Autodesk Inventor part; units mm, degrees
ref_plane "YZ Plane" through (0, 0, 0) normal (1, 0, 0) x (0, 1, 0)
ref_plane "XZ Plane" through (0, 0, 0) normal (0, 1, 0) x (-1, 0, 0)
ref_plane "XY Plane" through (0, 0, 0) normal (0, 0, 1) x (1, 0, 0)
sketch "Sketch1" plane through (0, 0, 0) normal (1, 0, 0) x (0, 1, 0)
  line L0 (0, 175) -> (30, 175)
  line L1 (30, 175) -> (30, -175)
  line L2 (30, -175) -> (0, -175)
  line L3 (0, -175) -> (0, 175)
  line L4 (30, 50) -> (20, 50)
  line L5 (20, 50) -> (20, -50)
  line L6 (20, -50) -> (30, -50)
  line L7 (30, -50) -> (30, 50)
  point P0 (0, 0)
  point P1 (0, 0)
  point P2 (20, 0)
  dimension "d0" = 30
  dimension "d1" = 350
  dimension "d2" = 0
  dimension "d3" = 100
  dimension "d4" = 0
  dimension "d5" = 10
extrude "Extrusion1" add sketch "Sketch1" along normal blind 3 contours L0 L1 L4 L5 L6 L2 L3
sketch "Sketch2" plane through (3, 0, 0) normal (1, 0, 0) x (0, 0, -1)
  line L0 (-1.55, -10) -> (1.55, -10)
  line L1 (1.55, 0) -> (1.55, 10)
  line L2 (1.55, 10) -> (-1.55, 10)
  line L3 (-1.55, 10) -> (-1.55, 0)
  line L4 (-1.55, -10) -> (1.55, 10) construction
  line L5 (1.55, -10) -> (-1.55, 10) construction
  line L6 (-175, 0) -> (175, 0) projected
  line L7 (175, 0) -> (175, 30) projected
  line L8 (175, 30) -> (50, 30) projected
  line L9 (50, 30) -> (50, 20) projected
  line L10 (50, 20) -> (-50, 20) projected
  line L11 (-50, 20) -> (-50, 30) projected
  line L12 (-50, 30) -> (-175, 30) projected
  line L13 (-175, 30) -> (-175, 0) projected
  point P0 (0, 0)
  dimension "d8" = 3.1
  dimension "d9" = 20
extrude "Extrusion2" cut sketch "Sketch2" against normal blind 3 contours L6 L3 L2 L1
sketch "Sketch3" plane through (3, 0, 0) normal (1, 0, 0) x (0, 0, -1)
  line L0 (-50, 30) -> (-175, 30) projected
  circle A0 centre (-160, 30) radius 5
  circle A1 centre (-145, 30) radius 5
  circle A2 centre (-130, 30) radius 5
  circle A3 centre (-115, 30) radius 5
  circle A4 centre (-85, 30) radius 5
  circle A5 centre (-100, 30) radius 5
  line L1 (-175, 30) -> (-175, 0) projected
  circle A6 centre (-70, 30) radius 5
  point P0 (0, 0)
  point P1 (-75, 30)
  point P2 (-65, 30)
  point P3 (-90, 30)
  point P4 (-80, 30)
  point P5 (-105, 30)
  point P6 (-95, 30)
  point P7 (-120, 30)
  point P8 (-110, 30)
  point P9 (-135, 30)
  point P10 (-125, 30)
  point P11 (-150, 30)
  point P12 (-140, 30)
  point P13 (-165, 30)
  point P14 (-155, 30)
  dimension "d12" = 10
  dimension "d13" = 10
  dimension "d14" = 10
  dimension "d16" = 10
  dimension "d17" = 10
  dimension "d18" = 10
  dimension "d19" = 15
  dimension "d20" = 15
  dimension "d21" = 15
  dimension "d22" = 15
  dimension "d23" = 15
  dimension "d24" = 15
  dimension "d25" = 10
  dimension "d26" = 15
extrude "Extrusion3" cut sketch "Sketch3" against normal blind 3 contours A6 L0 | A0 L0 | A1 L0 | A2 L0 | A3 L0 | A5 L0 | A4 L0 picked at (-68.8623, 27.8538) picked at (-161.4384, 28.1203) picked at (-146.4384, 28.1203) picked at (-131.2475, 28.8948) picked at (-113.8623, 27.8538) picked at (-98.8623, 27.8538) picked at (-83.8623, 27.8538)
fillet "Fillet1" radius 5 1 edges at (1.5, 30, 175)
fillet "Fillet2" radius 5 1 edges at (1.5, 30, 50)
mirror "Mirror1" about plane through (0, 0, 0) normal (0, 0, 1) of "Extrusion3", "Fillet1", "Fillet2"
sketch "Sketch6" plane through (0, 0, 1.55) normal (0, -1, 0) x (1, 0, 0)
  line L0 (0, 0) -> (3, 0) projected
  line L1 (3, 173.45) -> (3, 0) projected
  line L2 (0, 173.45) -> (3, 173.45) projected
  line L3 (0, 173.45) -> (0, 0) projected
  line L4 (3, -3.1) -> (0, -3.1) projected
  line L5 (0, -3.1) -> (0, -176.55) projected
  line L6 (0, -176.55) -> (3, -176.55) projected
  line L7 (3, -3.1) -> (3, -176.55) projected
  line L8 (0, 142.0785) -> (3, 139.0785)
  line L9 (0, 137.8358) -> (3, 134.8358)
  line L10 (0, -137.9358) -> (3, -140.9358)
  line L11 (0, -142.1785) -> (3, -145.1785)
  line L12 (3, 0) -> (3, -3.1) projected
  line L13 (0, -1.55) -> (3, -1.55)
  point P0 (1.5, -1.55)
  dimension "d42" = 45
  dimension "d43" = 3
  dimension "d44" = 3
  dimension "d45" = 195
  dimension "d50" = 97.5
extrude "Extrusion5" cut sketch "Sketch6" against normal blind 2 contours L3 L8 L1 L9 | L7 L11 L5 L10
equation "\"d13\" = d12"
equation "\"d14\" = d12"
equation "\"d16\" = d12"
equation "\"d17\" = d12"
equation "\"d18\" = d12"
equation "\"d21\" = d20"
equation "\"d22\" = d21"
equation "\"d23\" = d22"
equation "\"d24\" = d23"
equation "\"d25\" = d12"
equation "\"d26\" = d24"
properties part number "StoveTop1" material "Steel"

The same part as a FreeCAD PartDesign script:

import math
import FreeCAD as App
import Part
import Sketcher

V = App.Vector
Q = App.Units.Quantity


def edges_at(feature, points):
    """Names of the edges that pass closest to the given points."""
    edges = feature.Shape.Edges
    near = lambda p: min(range(len(edges)), key=lambda i: edges[i].distToShape(Part.Vertex(*p))[0])
    return sorted({f"Edge{near(p) + 1}" for p in points})

doc = App.newDocument("Part")
body = doc.addObject("PartDesign::Body", "Body")

# Sketch on YZ plane
sketch1 = body.newObject("Sketcher::SketchObject", "Sketch")
sketch1.AttachmentSupport = (doc.getObject("YZ_Plane"), [""])
sketch1.MapMode = "FlatFace"
sketch1.addGeometry([
    Part.LineSegment(V(30, 175, 0), V(0, 175, 0)),  # 0
    Part.LineSegment(V(0, 175, 0), V(0, -175, 0)),  # 1
    Part.LineSegment(V(0, -175, 0), V(30, -175, 0)),  # 2
    Part.LineSegment(V(30, -175, 0), V(30, -50, 0)),  # 3
    Part.LineSegment(V(30, -50, 0), V(20, -50, 0)),  # 4
    Part.LineSegment(V(20, -50, 0), V(20, 50, 0)),  # 5
    Part.LineSegment(V(20, 50, 0), V(30, 50, 0)),  # 6
    Part.LineSegment(V(30, 50, 0), V(30, 175, 0)),  # 7
], False)
sketch1.addConstraint([
    Sketcher.Constraint("Coincident", 0, 2, 1, 1),
    Sketcher.Constraint("Coincident", 1, 2, 2, 1),
    Sketcher.Constraint("Coincident", 2, 2, 3, 1),
    Sketcher.Constraint("Coincident", 3, 2, 4, 1),
    Sketcher.Constraint("Coincident", 4, 2, 5, 1),
    Sketcher.Constraint("Coincident", 5, 2, 6, 1),
    Sketcher.Constraint("Coincident", 6, 2, 7, 1),
    Sketcher.Constraint("Coincident", 7, 2, 0, 1),
    Sketcher.Constraint("Horizontal", 0),
    Sketcher.Constraint("Vertical", 1),
    Sketcher.Constraint("Horizontal", 2),
    Sketcher.Constraint("Vertical", 3),
    Sketcher.Constraint("Horizontal", 4),
    Sketcher.Constraint("Vertical", 5),
    Sketcher.Constraint("Horizontal", 6),
    Sketcher.Constraint("Vertical", 7),
    Sketcher.Constraint("Symmetric", 0, 2, 1, 2, -1, 1),
    Sketcher.Constraint("Symmetric", 3, 2, 6, 2, -1),
    Sketcher.Constraint("DistanceX", 0, 2, 0, 1, Q("30 mm")),
    Sketcher.Constraint("DistanceX", 4, 2, 4, 1, Q("10 mm")),
    Sketcher.Constraint("DistanceY", 1, 2, 1, 1, Q("350 mm")),
    Sketcher.Constraint("DistanceY", 5, 1, 5, 2, Q("100 mm")),
])
pad1 = body.newObject("PartDesign::Pad", "Pad")
pad1.Profile = sketch1
pad1.Length = 3

# Sketch on YZ plane
sketch2 = body.newObject("Sketcher::SketchObject", "Sketch001")
sketch2.AttachmentSupport = (doc.getObject("YZ_Plane"), [""])
sketch2.MapMode = "FlatFace"
sketch2.AttachmentOffset = App.Placement(V(0, 0, 3), App.Rotation())
sketch2.addGeometry([
    Part.LineSegment(V(0, 1.6, 0), V(0, -1.6, 0)),
    Part.LineSegment(V(0, -1.6, 0), V(10, -1.6, 0)),
    Part.LineSegment(V(10, -1.6, 0), V(10, 1.6, 0)),
    Part.LineSegment(V(10, 1.6, 0), V(0, 1.6, 0)),
], False)
sketch2.addConstraint([
    Sketcher.Constraint("Coincident", 0, 2, 1, 1),
    Sketcher.Constraint("Coincident", 1, 2, 2, 1),
    Sketcher.Constraint("Coincident", 2, 2, 3, 1),
    Sketcher.Constraint("Coincident", 3, 2, 0, 1),
    Sketcher.Constraint("Vertical", 0),
    Sketcher.Constraint("Horizontal", 1),
    Sketcher.Constraint("Vertical", 2),
    Sketcher.Constraint("Horizontal", 3),
    Sketcher.Constraint("Symmetric", 0, 2, 3, 2, -1, 1),
    Sketcher.Constraint("DistanceY", 0, 2, 0, 1, Q("3.1 mm")),
    Sketcher.Constraint("DistanceX", 1, 1, 1, 2, Q("10 mm")),
])
pocket1 = body.newObject("PartDesign::Pocket", "Pocket")
pocket1.Profile = sketch2
pocket1.Length = 3

# Sketch on YZ plane
sketch3 = body.newObject("Sketcher::SketchObject", "Sketch002")
sketch3.AttachmentSupport = (doc.getObject("YZ_Plane"), [""])
sketch3.MapMode = "FlatFace"
sketch3.AttachmentOffset = App.Placement(V(0, 0, 3), App.Rotation())
sketch3.addGeometry([
    Part.ArcOfCircle(Part.Circle(V(30, 70, 0), V(0, 0, 1), 5), math.radians(90), math.radians(270)),  # 0
    Part.LineSegment(V(30, 65, 0), V(30, 75, 0)),  # 1
    Part.ArcOfCircle(Part.Circle(V(30, 160, 0), V(0, 0, 1), 5), math.radians(90), math.radians(270)),  # 2
    Part.LineSegment(V(30, 155, 0), V(30, 165, 0)),  # 3
    Part.ArcOfCircle(Part.Circle(V(30, 145, 0), V(0, 0, 1), 5), math.radians(90), math.radians(270)),  # 4
    Part.LineSegment(V(30, 140, 0), V(30, 150, 0)),  # 5
    Part.ArcOfCircle(Part.Circle(V(30, 130, 0), V(0, 0, 1), 5), math.radians(90), math.radians(270)),  # 6
    Part.LineSegment(V(30, 125, 0), V(30, 135, 0)),  # 7
    Part.ArcOfCircle(Part.Circle(V(30, 115, 0), V(0, 0, 1), 5), math.radians(90), math.radians(270)),  # 8
    Part.LineSegment(V(30, 110, 0), V(30, 120, 0)),  # 9
    Part.ArcOfCircle(Part.Circle(V(30, 100, 0), V(0, 0, 1), 5), math.radians(90), math.radians(270)),  # 10
    Part.LineSegment(V(30, 95, 0), V(30, 105, 0)),  # 11
    Part.ArcOfCircle(Part.Circle(V(30, 85, 0), V(0, 0, 1), 5), math.radians(90), math.radians(270)),  # 12
    Part.LineSegment(V(30, 80, 0), V(30, 90, 0)),  # 13
], False)
sketch3.addConstraint([
    Sketcher.Constraint("Coincident", 0, 1, 1, 2),
    Sketcher.Constraint("Coincident", 1, 1, 0, 2),
    Sketcher.Constraint("Coincident", 2, 1, 3, 2),
    Sketcher.Constraint("Coincident", 3, 1, 2, 2),
    Sketcher.Constraint("Coincident", 4, 1, 5, 2),
    Sketcher.Constraint("Coincident", 5, 1, 4, 2),
    Sketcher.Constraint("Coincident", 6, 1, 7, 2),
    Sketcher.Constraint("Coincident", 7, 1, 6, 2),
    Sketcher.Constraint("Coincident", 8, 1, 9, 2),
    Sketcher.Constraint("Coincident", 9, 1, 8, 2),
    Sketcher.Constraint("Coincident", 10, 1, 11, 2),
    Sketcher.Constraint("Coincident", 11, 1, 10, 2),
    Sketcher.Constraint("Coincident", 12, 1, 13, 2),
    Sketcher.Constraint("Coincident", 13, 1, 12, 2),
    Sketcher.Constraint("Vertical", 1),
    Sketcher.Constraint("Vertical", 3),
    Sketcher.Constraint("Vertical", 5),
    Sketcher.Constraint("Vertical", 7),
    Sketcher.Constraint("Vertical", 9),
    Sketcher.Constraint("Vertical", 11),
    Sketcher.Constraint("Vertical", 13),
    Sketcher.Constraint("Equal", 0, 2),
    Sketcher.Constraint("Equal", 2, 4),
    Sketcher.Constraint("Equal", 4, 6),
    Sketcher.Constraint("Equal", 6, 8),
    Sketcher.Constraint("Equal", 8, 10),
    Sketcher.Constraint("Equal", 10, 12),
    Sketcher.Constraint("Vertical", 0, 3, 2, 3),
    Sketcher.Constraint("Vertical", 2, 3, 4, 3),
    Sketcher.Constraint("Vertical", 4, 3, 6, 3),
    Sketcher.Constraint("Vertical", 6, 3, 8, 3),
    Sketcher.Constraint("Vertical", 8, 3, 10, 3),
    Sketcher.Constraint("Vertical", 10, 3, 12, 3),
    Sketcher.Constraint("Vertical", 12, 3, 0, 1),
    Sketcher.Constraint("Vertical", 1, 1, 2, 1),
    Sketcher.Constraint("Vertical", 3, 1, 4, 1),
    Sketcher.Constraint("Vertical", 5, 1, 6, 1),
    Sketcher.Constraint("Vertical", 7, 1, 8, 1),
    Sketcher.Constraint("Vertical", 9, 1, 10, 1),
    Sketcher.Constraint("Vertical", 11, 1, 12, 1),
    Sketcher.Constraint("Radius", 0, Q("5 mm")),
    Sketcher.Constraint("DistanceY", 4, 3, 2, 3, Q("15 mm")),
    Sketcher.Constraint("DistanceY", 6, 3, 4, 3, Q("15 mm")),
    Sketcher.Constraint("DistanceY", 8, 3, 6, 3, Q("15 mm")),
    Sketcher.Constraint("DistanceY", 10, 3, 8, 3, Q("15 mm")),
    Sketcher.Constraint("DistanceY", 0, 3, 12, 3, Q("15 mm")),
    Sketcher.Constraint("DistanceY", 12, 3, 10, 3, Q("15 mm")),
    Sketcher.Constraint("DistanceX", -1, 1, 0, 3, Q("30 mm")),
    Sketcher.Constraint("DistanceY", -1, 1, 0, 3, Q("70 mm")),
])
pocket2 = body.newObject("PartDesign::Pocket", "Pocket001")
pocket2.Profile = sketch3
pocket2.Length = 3
doc.recompute()

fillet = body.newObject("PartDesign::Fillet", "Fillet")
fillet.Base = (pocket2, edges_at(pocket2, [(1.5, 30, 175)]))
fillet.Radius = 5
doc.recompute()

fillet2 = body.newObject("PartDesign::Fillet", "Fillet001")
fillet2.Base = (fillet, edges_at(fillet, [(1.5, 30, 50)]))
fillet2.Radius = 5
doc.recompute()

mirrored = body.newObject("PartDesign::Mirrored", "Mirrored")
mirrored.Originals = [pocket2, fillet, fillet2]
mirrored.MirrorPlane = (doc.getObject("XY_Plane"), [""])
body.Tip = mirrored

# Sketch on XZ plane
sketch4 = body.newObject("Sketcher::SketchObject", "Sketch003")
sketch4.AttachmentSupport = (doc.getObject("XZ_Plane"), [""])
sketch4.MapMode = "FlatFace"
sketch4.addGeometry([
    Part.LineSegment(V(0, 143.6, 0), V(0, 139.4, 0)),  # 0
    Part.LineSegment(V(0, 139.4, 0), V(3, 136.4, 0)),  # 1
    Part.LineSegment(V(3, 136.4, 0), V(3, 140.6, 0)),  # 2
    Part.LineSegment(V(3, 140.6, 0), V(0, 143.6, 0)),  # 3
    Part.LineSegment(V(3, -143.6, 0), V(3, -139.4, 0)),  # 4
    Part.LineSegment(V(3, -139.4, 0), V(0, -136.4, 0)),  # 5
    Part.LineSegment(V(0, -136.4, 0), V(0, -140.6, 0)),  # 6
    Part.LineSegment(V(0, -140.6, 0), V(3, -143.6, 0)),  # 7
], False)
sketch4.addConstraint([
    Sketcher.Constraint("Coincident", 0, 2, 1, 1),
    Sketcher.Constraint("Coincident", 1, 2, 2, 1),
    Sketcher.Constraint("Coincident", 2, 2, 3, 1),
    Sketcher.Constraint("Coincident", 3, 2, 0, 1),
    Sketcher.Constraint("Coincident", 4, 2, 5, 1),
    Sketcher.Constraint("Coincident", 5, 2, 6, 1),
    Sketcher.Constraint("Coincident", 6, 2, 7, 1),
    Sketcher.Constraint("Coincident", 7, 2, 4, 1),
    Sketcher.Constraint("Vertical", 0),
    Sketcher.Constraint("Vertical", 2),
    Sketcher.Constraint("Vertical", 4),
    Sketcher.Constraint("Vertical", 6),
    Sketcher.Constraint("PointOnObject", 0, 2, -2),
    Sketcher.Constraint("PointOnObject", 5, 2, -2),
    Sketcher.Constraint("Parallel", 1, 3),
    Sketcher.Constraint("Parallel", 3, 5),
    Sketcher.Constraint("Parallel", 5, 7),
    Sketcher.Constraint("Vertical", 2, 2, 4, 2),
    Sketcher.Constraint("Equal", 2, 4),
    Sketcher.Constraint("Angle", 1, Q("-45 deg")),
    Sketcher.Constraint("DistanceX", -1, 1, 1, 2, Q("3 mm")),
    Sketcher.Constraint("DistanceY", 0, 2, 0, 1, Q("4.2427 mm")),
    Sketcher.Constraint("DistanceY", 6, 2, 2, 2, Q("281.257 mm")),
    Sketcher.Constraint("DistanceY", -1, 1, 0, 2, Q("139.3858 mm")),
])
pocket3 = body.newObject("PartDesign::Pocket", "Pocket002")
pocket3.Profile = sketch4
pocket3.Length = 2

doc.recompute()
